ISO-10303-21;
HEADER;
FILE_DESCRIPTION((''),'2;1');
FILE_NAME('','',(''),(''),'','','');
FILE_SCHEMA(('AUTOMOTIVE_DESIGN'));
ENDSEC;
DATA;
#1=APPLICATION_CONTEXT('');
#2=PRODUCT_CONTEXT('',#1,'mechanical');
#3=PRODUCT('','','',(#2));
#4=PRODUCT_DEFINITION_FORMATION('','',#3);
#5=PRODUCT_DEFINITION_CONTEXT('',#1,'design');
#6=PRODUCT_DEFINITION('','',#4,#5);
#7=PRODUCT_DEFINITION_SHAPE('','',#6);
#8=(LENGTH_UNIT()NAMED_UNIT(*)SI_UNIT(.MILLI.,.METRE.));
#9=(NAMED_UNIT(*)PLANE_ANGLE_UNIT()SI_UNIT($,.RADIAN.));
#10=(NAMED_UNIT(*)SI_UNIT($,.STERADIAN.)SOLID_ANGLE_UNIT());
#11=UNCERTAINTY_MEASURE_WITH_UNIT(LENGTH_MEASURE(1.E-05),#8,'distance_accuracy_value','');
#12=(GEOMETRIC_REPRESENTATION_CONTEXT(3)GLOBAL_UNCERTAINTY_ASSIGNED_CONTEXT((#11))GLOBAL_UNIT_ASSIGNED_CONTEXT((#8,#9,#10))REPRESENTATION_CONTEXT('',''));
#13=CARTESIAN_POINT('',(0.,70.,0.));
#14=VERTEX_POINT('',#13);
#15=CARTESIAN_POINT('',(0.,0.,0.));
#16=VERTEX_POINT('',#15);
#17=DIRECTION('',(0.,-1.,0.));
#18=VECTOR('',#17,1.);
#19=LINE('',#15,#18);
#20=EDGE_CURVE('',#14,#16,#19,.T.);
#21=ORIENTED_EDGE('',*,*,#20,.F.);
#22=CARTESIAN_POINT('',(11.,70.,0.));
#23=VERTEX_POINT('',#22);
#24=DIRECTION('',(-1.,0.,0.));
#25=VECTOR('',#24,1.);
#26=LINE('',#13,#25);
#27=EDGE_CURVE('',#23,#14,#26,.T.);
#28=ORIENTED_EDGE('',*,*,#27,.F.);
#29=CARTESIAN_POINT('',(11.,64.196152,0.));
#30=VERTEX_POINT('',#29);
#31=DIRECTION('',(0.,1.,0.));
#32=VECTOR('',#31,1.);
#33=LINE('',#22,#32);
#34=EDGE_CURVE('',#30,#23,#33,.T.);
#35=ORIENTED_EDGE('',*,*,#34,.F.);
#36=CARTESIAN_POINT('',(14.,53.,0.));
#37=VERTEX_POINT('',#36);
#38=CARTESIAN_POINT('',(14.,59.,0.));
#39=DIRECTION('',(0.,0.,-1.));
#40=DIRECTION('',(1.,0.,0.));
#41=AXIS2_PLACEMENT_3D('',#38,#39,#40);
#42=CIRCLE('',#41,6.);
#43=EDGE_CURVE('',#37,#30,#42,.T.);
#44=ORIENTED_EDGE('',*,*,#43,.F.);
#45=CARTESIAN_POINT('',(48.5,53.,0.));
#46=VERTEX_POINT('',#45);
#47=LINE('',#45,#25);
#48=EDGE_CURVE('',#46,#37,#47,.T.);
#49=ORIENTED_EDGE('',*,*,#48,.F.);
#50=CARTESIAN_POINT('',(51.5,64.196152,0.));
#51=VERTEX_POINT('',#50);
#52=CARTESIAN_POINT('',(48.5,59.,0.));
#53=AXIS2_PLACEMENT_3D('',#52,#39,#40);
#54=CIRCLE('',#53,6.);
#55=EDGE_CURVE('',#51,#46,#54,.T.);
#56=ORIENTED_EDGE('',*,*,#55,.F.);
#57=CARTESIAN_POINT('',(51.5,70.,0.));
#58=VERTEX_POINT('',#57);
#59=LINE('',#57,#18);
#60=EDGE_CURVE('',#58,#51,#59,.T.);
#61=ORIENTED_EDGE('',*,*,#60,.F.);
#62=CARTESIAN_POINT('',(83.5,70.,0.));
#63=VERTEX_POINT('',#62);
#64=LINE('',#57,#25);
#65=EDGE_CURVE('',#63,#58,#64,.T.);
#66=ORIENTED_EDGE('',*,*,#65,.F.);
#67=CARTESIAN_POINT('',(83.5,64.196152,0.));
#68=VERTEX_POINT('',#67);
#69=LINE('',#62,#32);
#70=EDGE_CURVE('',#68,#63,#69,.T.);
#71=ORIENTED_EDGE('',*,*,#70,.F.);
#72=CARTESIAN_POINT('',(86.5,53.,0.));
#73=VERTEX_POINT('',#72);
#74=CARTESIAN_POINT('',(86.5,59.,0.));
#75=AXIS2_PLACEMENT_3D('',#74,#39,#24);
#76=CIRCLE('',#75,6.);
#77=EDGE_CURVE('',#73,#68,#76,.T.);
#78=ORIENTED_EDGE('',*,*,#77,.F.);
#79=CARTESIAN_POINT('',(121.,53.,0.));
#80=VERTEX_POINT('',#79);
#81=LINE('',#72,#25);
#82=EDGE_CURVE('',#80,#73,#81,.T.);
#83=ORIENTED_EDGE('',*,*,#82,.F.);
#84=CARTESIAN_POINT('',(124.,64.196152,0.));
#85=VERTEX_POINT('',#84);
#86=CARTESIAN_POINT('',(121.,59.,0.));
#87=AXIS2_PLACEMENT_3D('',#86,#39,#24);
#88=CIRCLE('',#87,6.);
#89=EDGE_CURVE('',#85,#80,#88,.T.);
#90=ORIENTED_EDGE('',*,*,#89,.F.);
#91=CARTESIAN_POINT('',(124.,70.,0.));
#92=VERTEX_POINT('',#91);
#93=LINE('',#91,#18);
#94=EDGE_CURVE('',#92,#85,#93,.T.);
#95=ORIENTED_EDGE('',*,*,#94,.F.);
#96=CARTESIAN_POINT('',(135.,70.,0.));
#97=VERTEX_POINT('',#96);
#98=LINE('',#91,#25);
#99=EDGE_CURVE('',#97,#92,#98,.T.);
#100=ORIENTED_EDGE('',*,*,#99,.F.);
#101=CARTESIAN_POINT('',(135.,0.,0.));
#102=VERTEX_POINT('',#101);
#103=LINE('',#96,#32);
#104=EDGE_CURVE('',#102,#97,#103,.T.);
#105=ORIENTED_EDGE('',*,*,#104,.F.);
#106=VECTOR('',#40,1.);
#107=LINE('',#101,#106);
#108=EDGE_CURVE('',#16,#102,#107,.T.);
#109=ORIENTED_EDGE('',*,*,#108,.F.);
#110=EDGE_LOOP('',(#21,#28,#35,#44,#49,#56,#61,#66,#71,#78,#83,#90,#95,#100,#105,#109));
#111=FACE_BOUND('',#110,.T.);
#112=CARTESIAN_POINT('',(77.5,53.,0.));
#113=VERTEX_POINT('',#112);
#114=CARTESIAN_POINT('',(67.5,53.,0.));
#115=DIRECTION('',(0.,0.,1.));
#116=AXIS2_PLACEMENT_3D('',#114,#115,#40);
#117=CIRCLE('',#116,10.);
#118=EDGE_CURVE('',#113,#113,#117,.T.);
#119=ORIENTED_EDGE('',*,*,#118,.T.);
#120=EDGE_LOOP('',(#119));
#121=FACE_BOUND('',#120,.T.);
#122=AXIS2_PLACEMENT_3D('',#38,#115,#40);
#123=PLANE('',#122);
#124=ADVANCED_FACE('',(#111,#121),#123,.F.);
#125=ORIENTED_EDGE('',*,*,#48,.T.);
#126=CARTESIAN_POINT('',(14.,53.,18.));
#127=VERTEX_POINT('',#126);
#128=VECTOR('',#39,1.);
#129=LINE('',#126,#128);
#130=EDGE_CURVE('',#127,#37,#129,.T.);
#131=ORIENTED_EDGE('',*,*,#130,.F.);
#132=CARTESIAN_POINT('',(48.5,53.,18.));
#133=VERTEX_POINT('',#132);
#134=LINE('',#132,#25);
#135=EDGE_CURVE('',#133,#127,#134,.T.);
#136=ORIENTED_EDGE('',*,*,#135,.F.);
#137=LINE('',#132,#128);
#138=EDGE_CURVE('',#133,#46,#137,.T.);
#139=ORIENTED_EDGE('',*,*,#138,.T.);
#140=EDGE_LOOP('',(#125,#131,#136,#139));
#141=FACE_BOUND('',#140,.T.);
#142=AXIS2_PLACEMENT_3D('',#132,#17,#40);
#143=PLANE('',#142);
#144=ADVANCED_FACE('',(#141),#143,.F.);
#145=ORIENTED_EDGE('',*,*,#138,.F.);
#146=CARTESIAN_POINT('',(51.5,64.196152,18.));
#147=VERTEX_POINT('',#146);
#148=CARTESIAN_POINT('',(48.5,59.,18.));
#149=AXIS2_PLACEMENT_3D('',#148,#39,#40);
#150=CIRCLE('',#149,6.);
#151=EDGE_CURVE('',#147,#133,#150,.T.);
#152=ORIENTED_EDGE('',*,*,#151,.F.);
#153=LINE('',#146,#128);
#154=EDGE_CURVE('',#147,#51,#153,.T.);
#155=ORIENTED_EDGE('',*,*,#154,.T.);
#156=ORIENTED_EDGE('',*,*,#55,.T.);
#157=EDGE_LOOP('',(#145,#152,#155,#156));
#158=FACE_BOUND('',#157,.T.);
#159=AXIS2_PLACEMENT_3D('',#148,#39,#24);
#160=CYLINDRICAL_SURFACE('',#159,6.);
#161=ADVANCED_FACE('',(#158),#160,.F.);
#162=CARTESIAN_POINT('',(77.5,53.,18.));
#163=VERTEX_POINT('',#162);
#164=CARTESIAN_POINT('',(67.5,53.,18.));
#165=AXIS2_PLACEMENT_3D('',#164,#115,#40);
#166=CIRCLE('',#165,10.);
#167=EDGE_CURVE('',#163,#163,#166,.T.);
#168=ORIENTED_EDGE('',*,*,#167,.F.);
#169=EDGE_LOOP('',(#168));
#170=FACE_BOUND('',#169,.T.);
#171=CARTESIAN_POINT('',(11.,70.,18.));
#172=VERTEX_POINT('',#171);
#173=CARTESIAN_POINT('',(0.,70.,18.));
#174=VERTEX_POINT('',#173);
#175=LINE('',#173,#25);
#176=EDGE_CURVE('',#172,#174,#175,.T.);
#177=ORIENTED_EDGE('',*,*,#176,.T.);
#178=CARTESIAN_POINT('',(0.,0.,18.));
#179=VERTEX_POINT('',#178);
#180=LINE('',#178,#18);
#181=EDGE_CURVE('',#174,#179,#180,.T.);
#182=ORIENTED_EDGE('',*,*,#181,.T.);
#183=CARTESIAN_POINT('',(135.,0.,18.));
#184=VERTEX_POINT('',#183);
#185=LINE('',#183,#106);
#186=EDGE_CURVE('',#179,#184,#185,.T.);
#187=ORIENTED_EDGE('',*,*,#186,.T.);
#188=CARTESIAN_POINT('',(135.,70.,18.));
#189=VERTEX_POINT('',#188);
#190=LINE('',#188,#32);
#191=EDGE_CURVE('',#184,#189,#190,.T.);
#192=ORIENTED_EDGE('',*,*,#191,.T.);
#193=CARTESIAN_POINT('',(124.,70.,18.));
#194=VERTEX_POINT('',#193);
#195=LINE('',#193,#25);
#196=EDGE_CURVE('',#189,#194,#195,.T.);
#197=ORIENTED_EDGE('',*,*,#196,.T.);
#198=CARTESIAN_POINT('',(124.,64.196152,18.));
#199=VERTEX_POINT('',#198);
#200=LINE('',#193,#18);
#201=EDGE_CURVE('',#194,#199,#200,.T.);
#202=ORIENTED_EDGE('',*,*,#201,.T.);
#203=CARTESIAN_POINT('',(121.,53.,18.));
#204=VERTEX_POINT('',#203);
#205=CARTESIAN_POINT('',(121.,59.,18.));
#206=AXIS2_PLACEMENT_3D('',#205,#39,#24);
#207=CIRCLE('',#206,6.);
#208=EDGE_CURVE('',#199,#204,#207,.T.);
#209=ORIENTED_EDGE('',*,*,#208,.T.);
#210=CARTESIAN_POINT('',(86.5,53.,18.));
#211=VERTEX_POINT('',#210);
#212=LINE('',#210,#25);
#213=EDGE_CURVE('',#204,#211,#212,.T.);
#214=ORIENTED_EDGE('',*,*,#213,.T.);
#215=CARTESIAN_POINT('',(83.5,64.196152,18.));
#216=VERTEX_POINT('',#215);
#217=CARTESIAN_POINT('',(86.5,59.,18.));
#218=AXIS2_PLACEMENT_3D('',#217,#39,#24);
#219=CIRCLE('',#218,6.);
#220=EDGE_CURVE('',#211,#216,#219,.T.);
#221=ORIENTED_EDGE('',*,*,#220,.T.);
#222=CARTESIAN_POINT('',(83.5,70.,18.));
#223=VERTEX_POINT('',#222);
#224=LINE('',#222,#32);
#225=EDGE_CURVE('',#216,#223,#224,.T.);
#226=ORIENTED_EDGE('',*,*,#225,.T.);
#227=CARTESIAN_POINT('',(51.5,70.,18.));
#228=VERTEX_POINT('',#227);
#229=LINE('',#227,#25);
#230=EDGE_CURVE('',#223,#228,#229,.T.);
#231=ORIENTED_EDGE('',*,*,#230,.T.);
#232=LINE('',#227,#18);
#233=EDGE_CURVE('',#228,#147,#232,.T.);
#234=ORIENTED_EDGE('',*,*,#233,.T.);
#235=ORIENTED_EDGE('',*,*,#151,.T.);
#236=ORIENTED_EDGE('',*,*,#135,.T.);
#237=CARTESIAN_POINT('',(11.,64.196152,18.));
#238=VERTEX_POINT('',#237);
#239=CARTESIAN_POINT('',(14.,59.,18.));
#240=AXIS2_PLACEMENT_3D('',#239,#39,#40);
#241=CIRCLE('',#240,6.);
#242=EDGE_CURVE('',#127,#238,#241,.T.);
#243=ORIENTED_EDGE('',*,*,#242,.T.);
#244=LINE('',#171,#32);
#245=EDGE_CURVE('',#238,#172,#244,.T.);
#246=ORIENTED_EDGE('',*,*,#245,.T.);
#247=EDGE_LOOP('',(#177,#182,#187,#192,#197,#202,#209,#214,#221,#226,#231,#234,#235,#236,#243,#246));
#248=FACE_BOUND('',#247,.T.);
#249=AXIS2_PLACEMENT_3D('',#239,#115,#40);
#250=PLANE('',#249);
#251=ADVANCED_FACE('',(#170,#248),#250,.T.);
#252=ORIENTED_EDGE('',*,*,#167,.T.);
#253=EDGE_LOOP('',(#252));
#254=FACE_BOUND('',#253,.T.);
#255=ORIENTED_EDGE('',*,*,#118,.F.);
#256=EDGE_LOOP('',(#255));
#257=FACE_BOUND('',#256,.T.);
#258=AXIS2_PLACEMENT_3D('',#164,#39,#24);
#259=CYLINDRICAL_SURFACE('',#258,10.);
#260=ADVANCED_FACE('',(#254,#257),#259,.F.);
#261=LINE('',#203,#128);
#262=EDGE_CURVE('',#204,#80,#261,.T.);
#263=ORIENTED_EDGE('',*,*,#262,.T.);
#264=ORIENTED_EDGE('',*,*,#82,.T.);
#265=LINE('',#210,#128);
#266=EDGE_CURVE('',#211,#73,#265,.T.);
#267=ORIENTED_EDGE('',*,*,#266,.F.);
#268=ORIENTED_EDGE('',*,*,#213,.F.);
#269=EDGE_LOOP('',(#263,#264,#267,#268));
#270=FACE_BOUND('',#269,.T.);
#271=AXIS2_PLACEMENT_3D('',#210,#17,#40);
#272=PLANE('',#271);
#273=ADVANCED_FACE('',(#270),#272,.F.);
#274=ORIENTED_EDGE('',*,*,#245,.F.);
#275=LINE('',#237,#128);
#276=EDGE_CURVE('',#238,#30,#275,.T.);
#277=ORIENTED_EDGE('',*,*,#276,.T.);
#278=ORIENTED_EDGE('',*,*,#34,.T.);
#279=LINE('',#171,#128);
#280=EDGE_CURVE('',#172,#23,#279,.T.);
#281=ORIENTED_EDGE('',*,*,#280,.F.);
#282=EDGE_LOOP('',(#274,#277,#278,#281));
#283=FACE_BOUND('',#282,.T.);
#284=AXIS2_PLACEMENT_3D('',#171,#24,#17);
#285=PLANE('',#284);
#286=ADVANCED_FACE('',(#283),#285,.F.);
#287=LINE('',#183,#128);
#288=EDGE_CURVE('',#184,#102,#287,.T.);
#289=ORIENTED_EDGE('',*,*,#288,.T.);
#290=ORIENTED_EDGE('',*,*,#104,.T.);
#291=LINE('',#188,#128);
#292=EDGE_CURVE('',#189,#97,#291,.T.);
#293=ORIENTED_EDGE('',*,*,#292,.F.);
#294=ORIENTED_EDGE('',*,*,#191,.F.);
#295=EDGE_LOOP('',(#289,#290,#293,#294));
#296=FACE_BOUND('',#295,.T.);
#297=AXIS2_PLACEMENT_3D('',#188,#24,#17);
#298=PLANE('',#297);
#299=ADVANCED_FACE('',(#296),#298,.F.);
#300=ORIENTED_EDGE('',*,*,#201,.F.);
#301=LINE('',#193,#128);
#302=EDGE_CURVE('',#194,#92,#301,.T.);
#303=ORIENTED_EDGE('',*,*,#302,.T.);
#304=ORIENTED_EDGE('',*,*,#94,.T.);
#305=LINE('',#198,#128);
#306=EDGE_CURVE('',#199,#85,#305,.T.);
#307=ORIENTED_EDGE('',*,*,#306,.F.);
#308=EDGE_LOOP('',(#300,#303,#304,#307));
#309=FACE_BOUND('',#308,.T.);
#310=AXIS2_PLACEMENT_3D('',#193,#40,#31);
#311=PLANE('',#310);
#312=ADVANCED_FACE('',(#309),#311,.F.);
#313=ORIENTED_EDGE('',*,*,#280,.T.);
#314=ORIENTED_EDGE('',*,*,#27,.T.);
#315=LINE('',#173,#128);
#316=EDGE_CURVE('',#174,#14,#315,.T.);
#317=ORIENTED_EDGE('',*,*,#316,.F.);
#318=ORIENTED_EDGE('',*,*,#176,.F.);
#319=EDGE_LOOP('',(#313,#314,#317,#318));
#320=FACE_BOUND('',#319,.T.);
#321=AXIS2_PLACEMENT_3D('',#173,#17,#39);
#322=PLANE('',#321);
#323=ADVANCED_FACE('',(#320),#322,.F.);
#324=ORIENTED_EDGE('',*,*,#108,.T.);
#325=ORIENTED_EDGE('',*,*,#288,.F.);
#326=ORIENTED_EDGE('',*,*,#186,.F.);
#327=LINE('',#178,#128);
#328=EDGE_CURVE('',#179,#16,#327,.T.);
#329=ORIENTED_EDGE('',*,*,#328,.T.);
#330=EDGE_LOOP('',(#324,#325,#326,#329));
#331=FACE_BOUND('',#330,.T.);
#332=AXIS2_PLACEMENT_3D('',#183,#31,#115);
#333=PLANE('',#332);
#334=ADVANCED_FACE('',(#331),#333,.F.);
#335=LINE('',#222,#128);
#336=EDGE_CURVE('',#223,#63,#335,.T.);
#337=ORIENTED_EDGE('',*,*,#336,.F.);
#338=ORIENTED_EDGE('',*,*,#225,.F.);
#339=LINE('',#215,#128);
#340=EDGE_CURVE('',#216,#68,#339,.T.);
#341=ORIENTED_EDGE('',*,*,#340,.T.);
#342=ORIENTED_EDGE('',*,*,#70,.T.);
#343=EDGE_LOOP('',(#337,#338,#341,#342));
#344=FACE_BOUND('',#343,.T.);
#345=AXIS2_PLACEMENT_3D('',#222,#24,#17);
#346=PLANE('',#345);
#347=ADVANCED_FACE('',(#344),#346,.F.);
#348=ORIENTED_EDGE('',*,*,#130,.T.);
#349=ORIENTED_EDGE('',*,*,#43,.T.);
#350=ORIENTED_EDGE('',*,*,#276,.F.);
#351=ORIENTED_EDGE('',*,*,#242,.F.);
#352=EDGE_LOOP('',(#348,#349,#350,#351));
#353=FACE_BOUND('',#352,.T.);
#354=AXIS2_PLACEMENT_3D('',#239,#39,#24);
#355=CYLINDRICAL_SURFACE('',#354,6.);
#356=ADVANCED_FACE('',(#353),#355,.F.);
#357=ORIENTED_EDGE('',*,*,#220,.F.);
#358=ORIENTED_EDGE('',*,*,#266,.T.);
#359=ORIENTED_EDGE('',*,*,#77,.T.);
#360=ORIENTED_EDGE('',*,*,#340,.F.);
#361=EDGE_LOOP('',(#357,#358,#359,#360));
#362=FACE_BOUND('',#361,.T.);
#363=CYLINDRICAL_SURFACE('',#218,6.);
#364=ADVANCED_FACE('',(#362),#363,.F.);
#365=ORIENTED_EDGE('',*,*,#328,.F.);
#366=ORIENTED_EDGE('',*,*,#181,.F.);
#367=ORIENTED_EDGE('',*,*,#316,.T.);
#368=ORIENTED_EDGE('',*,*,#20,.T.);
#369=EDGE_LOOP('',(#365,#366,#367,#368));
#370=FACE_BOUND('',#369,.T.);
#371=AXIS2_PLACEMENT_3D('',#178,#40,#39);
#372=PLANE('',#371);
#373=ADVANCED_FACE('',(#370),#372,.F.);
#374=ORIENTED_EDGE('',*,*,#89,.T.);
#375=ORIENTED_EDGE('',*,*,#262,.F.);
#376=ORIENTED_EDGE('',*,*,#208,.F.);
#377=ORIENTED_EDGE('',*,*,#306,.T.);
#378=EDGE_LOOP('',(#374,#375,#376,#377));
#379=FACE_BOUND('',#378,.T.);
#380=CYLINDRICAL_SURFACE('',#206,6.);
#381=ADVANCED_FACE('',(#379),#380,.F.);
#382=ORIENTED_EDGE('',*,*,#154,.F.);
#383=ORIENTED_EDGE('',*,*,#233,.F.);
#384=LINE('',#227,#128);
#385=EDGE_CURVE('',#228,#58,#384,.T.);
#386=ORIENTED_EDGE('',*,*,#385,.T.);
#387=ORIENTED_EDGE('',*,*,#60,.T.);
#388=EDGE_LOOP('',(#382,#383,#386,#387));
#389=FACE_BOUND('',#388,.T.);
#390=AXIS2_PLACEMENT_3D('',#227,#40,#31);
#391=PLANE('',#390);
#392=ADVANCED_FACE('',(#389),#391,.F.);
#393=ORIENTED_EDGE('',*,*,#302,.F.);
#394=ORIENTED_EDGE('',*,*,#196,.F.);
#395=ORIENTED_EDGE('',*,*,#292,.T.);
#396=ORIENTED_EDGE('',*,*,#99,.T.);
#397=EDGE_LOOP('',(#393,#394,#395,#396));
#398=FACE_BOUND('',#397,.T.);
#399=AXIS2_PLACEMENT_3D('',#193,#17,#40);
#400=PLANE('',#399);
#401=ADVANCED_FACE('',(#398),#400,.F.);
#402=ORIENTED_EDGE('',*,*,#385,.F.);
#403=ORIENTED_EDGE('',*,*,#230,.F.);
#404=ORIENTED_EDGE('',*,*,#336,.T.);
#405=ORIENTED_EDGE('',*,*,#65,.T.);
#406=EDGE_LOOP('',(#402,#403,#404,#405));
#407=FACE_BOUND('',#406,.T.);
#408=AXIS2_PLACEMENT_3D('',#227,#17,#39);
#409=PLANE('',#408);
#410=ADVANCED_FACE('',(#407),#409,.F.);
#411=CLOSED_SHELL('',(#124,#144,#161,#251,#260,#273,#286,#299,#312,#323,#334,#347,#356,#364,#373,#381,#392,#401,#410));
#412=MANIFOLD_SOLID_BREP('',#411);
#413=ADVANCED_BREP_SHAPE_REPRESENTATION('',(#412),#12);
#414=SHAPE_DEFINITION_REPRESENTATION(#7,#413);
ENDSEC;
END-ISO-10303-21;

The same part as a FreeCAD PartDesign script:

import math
import FreeCAD as App
import Part
import Sketcher
from FreeCAD import Vector

doc = App.newDocument("Part")
body = doc.addObject("PartDesign::Body", "Body")

# Sketch on XY plane
sketch1 = doc.addObject("Sketcher::SketchObject", "Sketch")
body.addObject(sketch1)
sketch1.AttachmentSupport = (doc.XY_Plane, [""])
sketch1.MapMode = "FlatFace"
sketch1.addGeometry([
    Part.LineSegment(Vector(0, 70, 0), Vector(0, 0, 0)),  # 0
    Part.LineSegment(Vector(0, 0, 0), Vector(135, 0, 0)),  # 1
    Part.LineSegment(Vector(135, 0, 0), Vector(135, 70, 0)),  # 2
    Part.LineSegment(Vector(135, 70, 0), Vector(124, 70, 0)),  # 3
    Part.LineSegment(Vector(124, 70, 0), Vector(124, 64, 0)),  # 4
    Part.ArcOfCircle(Part.Circle(Vector(121, 59, 0), Vector(0, 0, 1), 6), math.radians(-90), math.radians(60)),  # 5
    Part.LineSegment(Vector(121, 53, 0), Vector(86, 53, 0)),  # 6
    Part.ArcOfCircle(Part.Circle(Vector(86, 59, 0), Vector(0, 0, 1), 6), math.radians(120), math.radians(270)),  # 7
    Part.LineSegment(Vector(84, 64, 0), Vector(84, 70, 0)),  # 8
    Part.LineSegment(Vector(84, 70, 0), Vector(52, 70, 0)),  # 9
    Part.LineSegment(Vector(52, 70, 0), Vector(52, 64, 0)),  # 10
    Part.ArcOfCircle(Part.Circle(Vector(48, 59, 0), Vector(0, 0, 1), 6), math.radians(-90), math.radians(60)),  # 11
    Part.LineSegment(Vector(48, 53, 0), Vector(14, 53, 0)),  # 12
    Part.ArcOfCircle(Part.Circle(Vector(14, 59, 0), Vector(0, 0, 1), 6), math.radians(120), math.radians(270)),  # 13
    Part.LineSegment(Vector(11, 64, 0), Vector(11, 70, 0)),  # 14
    Part.LineSegment(Vector(11, 70, 0), Vector(0, 70, 0)),  # 15
    Part.Circle(Vector(68, 53, 0), Vector(0, 0, 1), 10),  # 16
], False)
sketch1.addConstraint([
    Sketcher.Constraint("Coincident", 0, 2, 1, 1),
    Sketcher.Constraint("Coincident", 1, 2, 2, 1),
    Sketcher.Constraint("Coincident", 2, 2, 3, 1),
    Sketcher.Constraint("Coincident", 3, 2, 4, 1),
    Sketcher.Constraint("Coincident", 4, 2, 5, 2),
    Sketcher.Constraint("Tangent", 5, 1, 6, 1),
    Sketcher.Constraint("Tangent", 6, 2, 7, 2),
    Sketcher.Constraint("Coincident", 7, 1, 8, 1),
    Sketcher.Constraint("Coincident", 8, 2, 9, 1),
    Sketcher.Constraint("Coincident", 9, 2, 10, 1),
    Sketcher.Constraint("Coincident", 10, 2, 11, 2),
    Sketcher.Constraint("Tangent", 11, 1, 12, 1),
    Sketcher.Constraint("Tangent", 12, 2, 13, 2),
    Sketcher.Constraint("Coincident", 13, 1, 14, 1),
    Sketcher.Constraint("Coincident", 14, 2, 15, 1),
    Sketcher.Constraint("Coincident", 15, 2, 0, 1),
    Sketcher.Constraint("Vertical", 0),
    Sketcher.Constraint("Horizontal", 1),
    Sketcher.Constraint("Vertical", 2),
    Sketcher.Constraint("Horizontal", 3),
    Sketcher.Constraint("Vertical", 4),
    Sketcher.Constraint("Horizontal", 6),
    Sketcher.Constraint("Vertical", 8),
    Sketcher.Constraint("Horizontal", 9),
    Sketcher.Constraint("Vertical", 10),
    Sketcher.Constraint("Horizontal", 12),
    Sketcher.Constraint("Vertical", 14),
    Sketcher.Constraint("Horizontal", 15),
    Sketcher.Constraint("Coincident", 0, 2, -1, 1),
    Sketcher.Constraint("Equal", 5, 7),
    Sketcher.Constraint("Equal", 7, 11),
    Sketcher.Constraint("Equal", 11, 13),
    Sketcher.Constraint("Horizontal", 7, 3, 11, 3),
    Sketcher.Constraint("Horizontal", 16, 3, 5, 1),
    Sketcher.Constraint("Horizontal", 4, 2, 7, 1),
    Sketcher.Constraint("Horizontal", 3, 2, 8, 2),
    Sketcher.Constraint("Horizontal", 7, 1, 10, 2),
    Sketcher.Constraint("Horizontal", 10, 2, 13, 1),
    Sketcher.Constraint("Horizontal", 9, 2, 14, 2),
    Sketcher.Constraint("Equal", 6, 12),
    Sketcher.Constraint("Equal", 3, 15),
    Sketcher.Constraint("Diameter", 16, 20.0),
    Sketcher.Constraint("Radius", 5, 6.0),
    Sketcher.Constraint("DistanceX", 1, 1, 1, 2, 135.0),
    Sketcher.Constraint("DistanceX", 3, 2, 3, 1, 11.0),
    Sketcher.Constraint("DistanceX", 9, 2, 9, 1, 32.0),
    Sketcher.Constraint("DistanceY", 0, 2, 0, 1, 70.0),
    Sketcher.Constraint("DistanceX", 6, 2, 6, 1, 34.5),
    Sketcher.Constraint("DistanceY", -1, 1, 5, 3, 59.0),
    Sketcher.Constraint("DistanceX", 16, 3, 7, 3, 19.0),
])
pad1 = doc.addObject("PartDesign::Pad", "Pad")
body.addObject(pad1)
pad1.Profile = sketch1
pad1.Length = 18

doc.recompute()
